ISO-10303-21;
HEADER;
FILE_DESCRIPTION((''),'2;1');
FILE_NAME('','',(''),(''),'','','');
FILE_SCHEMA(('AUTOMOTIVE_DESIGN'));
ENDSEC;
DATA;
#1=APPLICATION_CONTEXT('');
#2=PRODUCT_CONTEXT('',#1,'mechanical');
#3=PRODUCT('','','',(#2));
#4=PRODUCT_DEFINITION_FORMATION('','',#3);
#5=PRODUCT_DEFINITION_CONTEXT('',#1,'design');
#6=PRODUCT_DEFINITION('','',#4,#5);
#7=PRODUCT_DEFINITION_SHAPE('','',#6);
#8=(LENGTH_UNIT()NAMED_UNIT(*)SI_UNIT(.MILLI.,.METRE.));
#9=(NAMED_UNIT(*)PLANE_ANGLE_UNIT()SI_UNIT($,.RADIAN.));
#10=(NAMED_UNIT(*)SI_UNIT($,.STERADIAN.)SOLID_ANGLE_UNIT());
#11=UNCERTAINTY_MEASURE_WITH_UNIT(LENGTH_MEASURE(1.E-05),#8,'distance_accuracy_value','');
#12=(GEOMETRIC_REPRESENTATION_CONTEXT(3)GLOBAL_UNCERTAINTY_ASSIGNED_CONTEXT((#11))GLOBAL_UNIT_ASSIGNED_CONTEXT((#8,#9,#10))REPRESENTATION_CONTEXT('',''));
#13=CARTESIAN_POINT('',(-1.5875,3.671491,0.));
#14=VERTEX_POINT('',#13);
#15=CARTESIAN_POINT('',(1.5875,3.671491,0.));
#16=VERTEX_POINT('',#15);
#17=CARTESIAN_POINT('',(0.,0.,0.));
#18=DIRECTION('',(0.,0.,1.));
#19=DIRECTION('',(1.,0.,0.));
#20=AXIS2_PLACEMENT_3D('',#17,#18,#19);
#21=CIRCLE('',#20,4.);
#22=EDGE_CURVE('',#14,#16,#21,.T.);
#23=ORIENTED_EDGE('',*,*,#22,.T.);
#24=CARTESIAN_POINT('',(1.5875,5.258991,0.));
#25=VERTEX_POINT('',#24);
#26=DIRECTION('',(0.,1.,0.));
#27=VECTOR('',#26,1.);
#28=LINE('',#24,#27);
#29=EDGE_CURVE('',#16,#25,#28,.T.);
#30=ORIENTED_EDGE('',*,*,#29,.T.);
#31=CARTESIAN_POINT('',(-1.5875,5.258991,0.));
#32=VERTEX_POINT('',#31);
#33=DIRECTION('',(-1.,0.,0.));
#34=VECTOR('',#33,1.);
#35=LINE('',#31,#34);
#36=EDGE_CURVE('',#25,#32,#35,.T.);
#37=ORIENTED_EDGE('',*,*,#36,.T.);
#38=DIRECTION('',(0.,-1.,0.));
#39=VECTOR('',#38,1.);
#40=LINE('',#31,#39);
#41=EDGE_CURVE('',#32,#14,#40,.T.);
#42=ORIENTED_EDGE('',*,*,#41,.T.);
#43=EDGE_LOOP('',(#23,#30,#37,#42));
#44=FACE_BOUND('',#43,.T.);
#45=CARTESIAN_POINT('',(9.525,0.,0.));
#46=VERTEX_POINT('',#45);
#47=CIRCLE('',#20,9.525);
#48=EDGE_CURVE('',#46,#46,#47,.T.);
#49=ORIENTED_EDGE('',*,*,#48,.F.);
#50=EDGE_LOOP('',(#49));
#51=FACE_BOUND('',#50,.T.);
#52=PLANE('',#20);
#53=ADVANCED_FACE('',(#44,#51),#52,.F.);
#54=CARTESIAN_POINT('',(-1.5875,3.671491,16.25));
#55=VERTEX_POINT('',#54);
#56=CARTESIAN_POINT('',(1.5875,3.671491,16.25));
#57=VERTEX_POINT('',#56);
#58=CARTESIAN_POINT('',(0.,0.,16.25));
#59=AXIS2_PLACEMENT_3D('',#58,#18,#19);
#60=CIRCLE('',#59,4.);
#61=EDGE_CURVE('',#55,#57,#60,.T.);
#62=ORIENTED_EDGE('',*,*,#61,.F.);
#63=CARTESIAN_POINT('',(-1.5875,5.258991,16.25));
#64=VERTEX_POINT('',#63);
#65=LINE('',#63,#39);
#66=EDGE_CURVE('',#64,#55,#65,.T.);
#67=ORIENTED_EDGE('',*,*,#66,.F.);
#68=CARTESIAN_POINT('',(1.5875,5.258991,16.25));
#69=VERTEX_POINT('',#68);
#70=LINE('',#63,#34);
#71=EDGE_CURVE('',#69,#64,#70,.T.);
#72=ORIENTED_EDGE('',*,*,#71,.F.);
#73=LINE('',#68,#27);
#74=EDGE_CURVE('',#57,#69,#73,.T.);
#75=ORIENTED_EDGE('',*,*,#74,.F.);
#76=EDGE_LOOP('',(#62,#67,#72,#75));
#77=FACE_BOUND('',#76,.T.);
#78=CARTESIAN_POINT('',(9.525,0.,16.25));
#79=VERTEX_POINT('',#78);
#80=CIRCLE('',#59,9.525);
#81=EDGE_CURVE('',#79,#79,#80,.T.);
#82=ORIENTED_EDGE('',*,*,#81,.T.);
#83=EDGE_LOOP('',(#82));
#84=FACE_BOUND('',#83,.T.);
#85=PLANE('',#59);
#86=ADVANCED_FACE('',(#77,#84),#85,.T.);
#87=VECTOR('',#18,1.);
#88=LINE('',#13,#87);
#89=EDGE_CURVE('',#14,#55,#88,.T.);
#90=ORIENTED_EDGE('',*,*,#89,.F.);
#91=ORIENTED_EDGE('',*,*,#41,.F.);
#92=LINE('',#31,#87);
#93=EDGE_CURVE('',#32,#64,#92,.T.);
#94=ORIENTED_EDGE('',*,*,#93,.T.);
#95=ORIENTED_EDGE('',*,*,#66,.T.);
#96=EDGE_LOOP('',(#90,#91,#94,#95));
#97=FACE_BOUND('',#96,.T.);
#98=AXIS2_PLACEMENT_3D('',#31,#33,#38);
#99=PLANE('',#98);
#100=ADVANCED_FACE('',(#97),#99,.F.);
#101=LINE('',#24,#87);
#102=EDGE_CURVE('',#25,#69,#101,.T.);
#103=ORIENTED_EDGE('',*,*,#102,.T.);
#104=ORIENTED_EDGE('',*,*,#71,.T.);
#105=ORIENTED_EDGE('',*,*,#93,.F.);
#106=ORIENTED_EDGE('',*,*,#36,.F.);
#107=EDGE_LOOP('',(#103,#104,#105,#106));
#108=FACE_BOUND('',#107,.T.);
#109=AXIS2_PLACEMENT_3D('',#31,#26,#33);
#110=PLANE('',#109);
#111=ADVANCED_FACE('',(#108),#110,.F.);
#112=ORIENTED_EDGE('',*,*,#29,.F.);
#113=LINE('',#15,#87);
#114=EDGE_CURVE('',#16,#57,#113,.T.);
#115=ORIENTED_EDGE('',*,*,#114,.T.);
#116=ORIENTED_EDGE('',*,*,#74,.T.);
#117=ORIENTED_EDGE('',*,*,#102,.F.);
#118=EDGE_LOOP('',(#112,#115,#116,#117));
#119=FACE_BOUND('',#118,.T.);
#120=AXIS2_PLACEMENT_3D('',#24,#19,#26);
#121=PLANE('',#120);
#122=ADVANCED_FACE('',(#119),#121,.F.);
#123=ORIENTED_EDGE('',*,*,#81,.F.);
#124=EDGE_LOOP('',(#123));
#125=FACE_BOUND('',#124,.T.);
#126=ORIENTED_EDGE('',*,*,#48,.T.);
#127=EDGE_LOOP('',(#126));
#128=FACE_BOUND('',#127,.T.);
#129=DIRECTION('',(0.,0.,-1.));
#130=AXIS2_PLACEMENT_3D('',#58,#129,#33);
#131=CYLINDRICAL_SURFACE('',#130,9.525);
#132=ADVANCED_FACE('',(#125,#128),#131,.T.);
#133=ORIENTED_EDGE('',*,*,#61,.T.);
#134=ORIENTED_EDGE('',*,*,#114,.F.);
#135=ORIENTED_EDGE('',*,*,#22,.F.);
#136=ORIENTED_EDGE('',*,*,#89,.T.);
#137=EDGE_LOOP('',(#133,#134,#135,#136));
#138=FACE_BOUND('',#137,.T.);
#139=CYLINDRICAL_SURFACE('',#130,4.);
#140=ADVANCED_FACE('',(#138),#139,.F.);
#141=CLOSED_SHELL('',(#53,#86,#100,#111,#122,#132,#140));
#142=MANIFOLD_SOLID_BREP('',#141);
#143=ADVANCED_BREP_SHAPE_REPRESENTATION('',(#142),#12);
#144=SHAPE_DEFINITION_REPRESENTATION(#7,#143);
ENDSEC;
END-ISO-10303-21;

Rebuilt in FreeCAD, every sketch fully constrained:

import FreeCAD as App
import Part
import Sketcher
from FreeCAD import Vector
Q = App.Units.Quantity

doc = App.newDocument("Part")
body = doc.addObject("PartDesign::Body", "Body")

# Sketch on XY plane
sketch1 = body.newObject("Sketcher::SketchObject", "Sketch")
sketch1.AttachmentSupport = (doc.getObject("XY_Plane"), [""])
sketch1.MapMode = "FlatFace"
sketch1.addGeometry(Part.Circle(Vector(0, 0, 0), Vector(0, 0, 1), 9.525), False)
sketch1.addGeometry(Part.Circle(Vector(0, 0, 0), Vector(0, 0, 1), 4), False)
sketch1.addConstraint(Sketcher.Constraint("Coincident", 0, 3, -1, 1))
sketch1.addConstraint(Sketcher.Constraint("Coincident", 1, 3, -1, 1))
sketch1.addConstraint(Sketcher.Constraint("Diameter", 0, Q("0.75 in")))
sketch1.addConstraint(Sketcher.Constraint("Diameter", 1, 8.0))
pad1 = body.newObject("PartDesign::Pad", "Pad")
pad1.Profile = sketch1
pad1.Length = 16.25

# Sketch on XY plane
sketch2 = body.newObject("Sketcher::SketchObject", "Sketch001")
sketch2.AttachmentSupport = (doc.getObject("XY_Plane"), [""])
sketch2.MapMode = "FlatFace"
sketch2.AttachmentOffset = App.Placement(Vector(0, 0, 16.25), App.Rotation())
sketch2.addGeometry(Part.LineSegment(Vector(-1.5875, 5.258991, 0), Vector(-1.5875, 3.671491, 0)), False)
sketch2.addGeometry(Part.LineSegment(Vector(-1.5875, 3.671491, 0), Vector(1.5875, 3.671491, 0)), False)
sketch2.addGeometry(Part.LineSegment(Vector(1.5875, 3.671491, 0), Vector(1.5875, 5.258991, 0)), False)
sketch2.addGeometry(Part.LineSegment(Vector(1.5875, 5.258991, 0), Vector(-1.5875, 5.258991, 0)), False)
sketch2.addConstraint(Sketcher.Constraint("Coincident", 0, 2, 1, 1))
sketch2.addConstraint(Sketcher.Constraint("Coincident", 1, 2, 2, 1))
sketch2.addConstraint(Sketcher.Constraint("Coincident", 2, 2, 3, 1))
sketch2.addConstraint(Sketcher.Constraint("Coincident", 3, 2, 0, 1))
sketch2.addConstraint(Sketcher.Constraint("Vertical", 0))
sketch2.addConstraint(Sketcher.Constraint("Horizontal", 1))
sketch2.addConstraint(Sketcher.Constraint("Vertical", 2))
sketch2.addConstraint(Sketcher.Constraint("Horizontal", 3))
sketch2.addConstraint(Sketcher.Constraint("DistanceX", 1, 1, 1, 2, Q("0.125 in")))
sketch2.addConstraint(Sketcher.Constraint("DistanceY", 0, 2, 0, 1, Q("0.0625 in")))
sketch2.addConstraint(Sketcher.Constraint("DistanceX", 0, 2, -1, 1, Q("0.0625 in")))
sketch2.addConstraint(Sketcher.Constraint("DistanceY", -1, 1, 0, 2, 3.671491))
pocket1 = body.newObject("PartDesign::Pocket", "Pocket")
pocket1.Profile = sketch2
pocket1.Type = "ThroughAll"

doc.recompute()
